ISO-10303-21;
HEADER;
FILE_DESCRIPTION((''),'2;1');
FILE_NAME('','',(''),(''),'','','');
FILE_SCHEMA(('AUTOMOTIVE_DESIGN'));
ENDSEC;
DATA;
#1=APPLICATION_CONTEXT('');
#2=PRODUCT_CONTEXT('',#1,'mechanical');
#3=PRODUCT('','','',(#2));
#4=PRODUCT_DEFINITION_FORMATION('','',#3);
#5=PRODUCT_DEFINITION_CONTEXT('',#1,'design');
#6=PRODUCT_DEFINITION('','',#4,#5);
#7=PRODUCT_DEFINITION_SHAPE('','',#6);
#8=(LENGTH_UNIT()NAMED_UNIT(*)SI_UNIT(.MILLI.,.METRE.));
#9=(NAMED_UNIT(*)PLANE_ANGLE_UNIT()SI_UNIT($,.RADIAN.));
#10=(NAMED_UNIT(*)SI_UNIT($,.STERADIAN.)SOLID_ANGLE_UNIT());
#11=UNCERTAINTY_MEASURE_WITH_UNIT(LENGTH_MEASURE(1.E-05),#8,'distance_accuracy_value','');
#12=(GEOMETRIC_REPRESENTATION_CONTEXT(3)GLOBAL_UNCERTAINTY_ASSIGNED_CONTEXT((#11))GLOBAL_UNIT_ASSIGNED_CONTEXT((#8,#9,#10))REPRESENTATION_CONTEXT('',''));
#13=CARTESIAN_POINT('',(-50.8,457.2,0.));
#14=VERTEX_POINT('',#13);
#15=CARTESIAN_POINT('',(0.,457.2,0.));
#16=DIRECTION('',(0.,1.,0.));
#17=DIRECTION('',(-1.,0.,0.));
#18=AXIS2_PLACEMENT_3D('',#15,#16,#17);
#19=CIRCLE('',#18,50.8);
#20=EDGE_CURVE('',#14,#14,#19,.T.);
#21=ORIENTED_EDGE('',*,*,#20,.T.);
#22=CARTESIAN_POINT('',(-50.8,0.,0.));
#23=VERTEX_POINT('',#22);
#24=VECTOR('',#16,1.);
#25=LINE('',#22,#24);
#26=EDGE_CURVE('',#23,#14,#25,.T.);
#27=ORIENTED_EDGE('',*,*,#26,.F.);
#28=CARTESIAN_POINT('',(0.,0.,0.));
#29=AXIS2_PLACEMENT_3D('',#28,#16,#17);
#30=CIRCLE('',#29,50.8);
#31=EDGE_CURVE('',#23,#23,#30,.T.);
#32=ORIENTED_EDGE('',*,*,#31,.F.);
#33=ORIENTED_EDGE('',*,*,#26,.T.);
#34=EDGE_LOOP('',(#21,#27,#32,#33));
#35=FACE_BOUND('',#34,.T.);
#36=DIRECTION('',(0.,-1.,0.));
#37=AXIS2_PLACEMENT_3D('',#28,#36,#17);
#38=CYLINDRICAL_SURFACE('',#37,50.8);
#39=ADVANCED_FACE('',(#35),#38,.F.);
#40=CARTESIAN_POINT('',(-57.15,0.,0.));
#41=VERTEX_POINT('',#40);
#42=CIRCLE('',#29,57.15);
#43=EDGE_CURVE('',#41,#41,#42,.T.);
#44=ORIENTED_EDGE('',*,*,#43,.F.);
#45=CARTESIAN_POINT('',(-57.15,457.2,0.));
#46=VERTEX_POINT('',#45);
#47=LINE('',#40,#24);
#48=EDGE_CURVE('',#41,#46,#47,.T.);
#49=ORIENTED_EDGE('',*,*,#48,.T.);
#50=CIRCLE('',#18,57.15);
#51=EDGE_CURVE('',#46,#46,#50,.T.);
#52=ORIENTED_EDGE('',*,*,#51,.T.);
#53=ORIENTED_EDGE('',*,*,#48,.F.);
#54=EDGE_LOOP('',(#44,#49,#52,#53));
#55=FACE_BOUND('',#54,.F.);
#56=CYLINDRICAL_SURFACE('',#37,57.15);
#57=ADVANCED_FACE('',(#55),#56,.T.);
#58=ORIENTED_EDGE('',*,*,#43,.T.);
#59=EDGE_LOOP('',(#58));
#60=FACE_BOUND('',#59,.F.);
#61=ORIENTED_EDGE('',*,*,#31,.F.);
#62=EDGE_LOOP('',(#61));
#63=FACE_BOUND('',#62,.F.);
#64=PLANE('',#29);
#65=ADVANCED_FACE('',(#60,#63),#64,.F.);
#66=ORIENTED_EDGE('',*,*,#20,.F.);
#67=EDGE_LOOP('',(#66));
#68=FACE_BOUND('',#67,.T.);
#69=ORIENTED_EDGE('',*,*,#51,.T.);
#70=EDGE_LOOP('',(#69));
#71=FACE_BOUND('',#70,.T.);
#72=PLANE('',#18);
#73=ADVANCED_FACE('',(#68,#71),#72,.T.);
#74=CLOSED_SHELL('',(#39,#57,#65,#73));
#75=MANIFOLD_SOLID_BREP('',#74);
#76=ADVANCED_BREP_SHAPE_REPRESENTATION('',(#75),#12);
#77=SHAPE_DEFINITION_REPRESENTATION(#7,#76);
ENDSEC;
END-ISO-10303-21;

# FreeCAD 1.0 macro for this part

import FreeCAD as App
import Part
import Sketcher

V = App.Vector
Q = App.Units.Quantity

doc = App.newDocument("Part")
body = doc.addObject("PartDesign::Body", "Body")

# Sketch on XZ plane
sketch1 = doc.addObject("Sketcher::SketchObject", "Sketch")
body.addObject(sketch1)
sketch1.AttachmentSupport = (doc.XZ_Plane, [""])
sketch1.MapMode = "FlatFace"
sketch1.addGeometry([
    Part.Circle(V(0, 0, 0), V(0, 0, 1), 57),
    Part.Circle(V(0, 0, 0), V(0, 0, 1), 51),
], False)
sketch1.addConstraint([
    Sketcher.Constraint("Coincident", 0, 3, -1, 1),
    Sketcher.Constraint("Coincident", 1, 3, -1, 1),
    Sketcher.Constraint("Diameter", 1, Q("4 in")),
    Sketcher.Constraint("Diameter", 0, Q("4.5 in")),
])
pad1 = doc.addObject("PartDesign::Pad", "Pad")
body.addObject(pad1)
pad1.Profile = sketch1
pad1.Length = Q("18 in")
pad1.Reversed = True

doc.recompute()
